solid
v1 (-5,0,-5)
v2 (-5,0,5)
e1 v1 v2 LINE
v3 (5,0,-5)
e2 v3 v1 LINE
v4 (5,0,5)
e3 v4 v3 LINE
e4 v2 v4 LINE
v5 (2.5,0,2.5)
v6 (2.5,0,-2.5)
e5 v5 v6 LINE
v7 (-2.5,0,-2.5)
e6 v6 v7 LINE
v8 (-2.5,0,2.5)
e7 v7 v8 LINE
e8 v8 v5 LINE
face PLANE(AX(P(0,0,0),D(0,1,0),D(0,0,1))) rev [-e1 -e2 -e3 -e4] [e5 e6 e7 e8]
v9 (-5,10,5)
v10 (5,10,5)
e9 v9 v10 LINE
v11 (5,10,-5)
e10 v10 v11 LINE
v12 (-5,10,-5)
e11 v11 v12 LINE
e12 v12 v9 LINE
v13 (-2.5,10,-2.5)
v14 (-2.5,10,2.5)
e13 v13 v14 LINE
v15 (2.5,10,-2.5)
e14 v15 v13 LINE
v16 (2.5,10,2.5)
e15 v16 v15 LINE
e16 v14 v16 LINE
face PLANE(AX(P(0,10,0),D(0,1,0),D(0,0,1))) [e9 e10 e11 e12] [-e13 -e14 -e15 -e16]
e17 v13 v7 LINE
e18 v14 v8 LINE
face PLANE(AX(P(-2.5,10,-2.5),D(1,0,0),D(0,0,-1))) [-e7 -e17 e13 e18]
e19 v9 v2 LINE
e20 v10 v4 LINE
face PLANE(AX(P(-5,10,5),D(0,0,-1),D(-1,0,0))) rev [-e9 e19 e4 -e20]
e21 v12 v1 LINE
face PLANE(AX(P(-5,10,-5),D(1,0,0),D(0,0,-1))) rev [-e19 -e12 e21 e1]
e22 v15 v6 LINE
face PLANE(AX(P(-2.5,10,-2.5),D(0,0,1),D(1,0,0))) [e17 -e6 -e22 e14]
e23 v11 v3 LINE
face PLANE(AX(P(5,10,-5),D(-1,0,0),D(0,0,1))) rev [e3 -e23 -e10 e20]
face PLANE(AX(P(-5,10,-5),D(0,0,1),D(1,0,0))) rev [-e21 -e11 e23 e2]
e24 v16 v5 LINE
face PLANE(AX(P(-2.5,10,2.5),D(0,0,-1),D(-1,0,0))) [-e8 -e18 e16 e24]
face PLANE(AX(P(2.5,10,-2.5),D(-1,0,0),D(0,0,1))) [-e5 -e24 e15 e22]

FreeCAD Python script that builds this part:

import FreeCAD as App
import Part
import Sketcher

V = App.Vector

doc = App.newDocument("Part")
body = doc.addObject("PartDesign::Body", "Body")

# Sketch on XZ plane
sketch1 = body.newObject("Sketcher::SketchObject", "Sketch")
sketch1.AttachmentSupport = (doc.getObject("XZ_Plane"), [""])
sketch1.MapMode = "FlatFace"
sketch1.addGeometry(Part.LineSegment(V(-5, -5, 0), V(-5, 5, 0)), False)
sketch1.addGeometry(Part.LineSegment(V(-5, 5, 0), V(5, 5, 0)), False)
sketch1.addGeometry(Part.LineSegment(V(5, 5, 0), V(5, -5, 0)), False)
sketch1.addGeometry(Part.LineSegment(V(5, -5, 0), V(-5, -5, 0)), False)
sketch1.addGeometry(Part.LineSegment(V(2.5, 2.5, 0), V(-2.5, 2.5, 0)), False)
sketch1.addGeometry(Part.LineSegment(V(-2.5, 2.5, 0), V(-2.5, -2.5, 0)), False)
sketch1.addGeometry(Part.LineSegment(V(-2.5, -2.5, 0), V(2.5, -2.5, 0)), False)
sketch1.addGeometry(Part.LineSegment(V(2.5, -2.5, 0), V(2.5, 2.5, 0)), False)
sketch1.addConstraint(Sketcher.Constraint("Coincident", 0, 2, 1, 1))
sketch1.addConstraint(Sketcher.Constraint("Coincident", 1, 2, 2, 1))
sketch1.addConstraint(Sketcher.Constraint("Coincident", 2, 2, 3, 1))
sketch1.addConstraint(Sketcher.Constraint("Coincident", 3, 2, 0, 1))
sketch1.addConstraint(Sketcher.Constraint("Coincident", 4, 2, 5, 1))
sketch1.addConstraint(Sketcher.Constraint("Coincident", 5, 2, 6, 1))
sketch1.addConstraint(Sketcher.Constraint("Coincident", 6, 2, 7, 1))
sketch1.addConstraint(Sketcher.Constraint("Coincident", 7, 2, 4, 1))
sketch1.addConstraint(Sketcher.Constraint("Vertical", 0))
sketch1.addConstraint(Sketcher.Constraint("Horizontal", 1))
sketch1.addConstraint(Sketcher.Constraint("Vertical", 2))
sketch1.addConstraint(Sketcher.Constraint("Horizontal", 3))
sketch1.addConstraint(Sketcher.Constraint("Horizontal", 4))
sketch1.addConstraint(Sketcher.Constraint("Vertical", 5))
sketch1.addConstraint(Sketcher.Constraint("Horizontal", 6))
sketch1.addConstraint(Sketcher.Constraint("Vertical", 7))
sketch1.addConstraint(Sketcher.Constraint("Symmetric", 0, 2, 2, 2, -1, 1))
sketch1.addConstraint(Sketcher.Constraint("Symmetric", 4, 2, 6, 2, -1, 1))
sketch1.addConstraint(Sketcher.Constraint("Equal", 3, 0))
sketch1.addConstraint(Sketcher.Constraint("Equal", 6, 5))
sketch1.addConstraint(Sketcher.Constraint("DistanceX", 1, 1, 1, 2, 10.0))
sketch1.addConstraint(Sketcher.Constraint("DistanceX", 4, 2, 4, 1, 5.0))
pad1 = body.newObject("PartDesign::Pad", "Pad")
pad1.Profile = sketch1
pad1.Length = 10
pad1.Reversed = True

doc.recompute()
